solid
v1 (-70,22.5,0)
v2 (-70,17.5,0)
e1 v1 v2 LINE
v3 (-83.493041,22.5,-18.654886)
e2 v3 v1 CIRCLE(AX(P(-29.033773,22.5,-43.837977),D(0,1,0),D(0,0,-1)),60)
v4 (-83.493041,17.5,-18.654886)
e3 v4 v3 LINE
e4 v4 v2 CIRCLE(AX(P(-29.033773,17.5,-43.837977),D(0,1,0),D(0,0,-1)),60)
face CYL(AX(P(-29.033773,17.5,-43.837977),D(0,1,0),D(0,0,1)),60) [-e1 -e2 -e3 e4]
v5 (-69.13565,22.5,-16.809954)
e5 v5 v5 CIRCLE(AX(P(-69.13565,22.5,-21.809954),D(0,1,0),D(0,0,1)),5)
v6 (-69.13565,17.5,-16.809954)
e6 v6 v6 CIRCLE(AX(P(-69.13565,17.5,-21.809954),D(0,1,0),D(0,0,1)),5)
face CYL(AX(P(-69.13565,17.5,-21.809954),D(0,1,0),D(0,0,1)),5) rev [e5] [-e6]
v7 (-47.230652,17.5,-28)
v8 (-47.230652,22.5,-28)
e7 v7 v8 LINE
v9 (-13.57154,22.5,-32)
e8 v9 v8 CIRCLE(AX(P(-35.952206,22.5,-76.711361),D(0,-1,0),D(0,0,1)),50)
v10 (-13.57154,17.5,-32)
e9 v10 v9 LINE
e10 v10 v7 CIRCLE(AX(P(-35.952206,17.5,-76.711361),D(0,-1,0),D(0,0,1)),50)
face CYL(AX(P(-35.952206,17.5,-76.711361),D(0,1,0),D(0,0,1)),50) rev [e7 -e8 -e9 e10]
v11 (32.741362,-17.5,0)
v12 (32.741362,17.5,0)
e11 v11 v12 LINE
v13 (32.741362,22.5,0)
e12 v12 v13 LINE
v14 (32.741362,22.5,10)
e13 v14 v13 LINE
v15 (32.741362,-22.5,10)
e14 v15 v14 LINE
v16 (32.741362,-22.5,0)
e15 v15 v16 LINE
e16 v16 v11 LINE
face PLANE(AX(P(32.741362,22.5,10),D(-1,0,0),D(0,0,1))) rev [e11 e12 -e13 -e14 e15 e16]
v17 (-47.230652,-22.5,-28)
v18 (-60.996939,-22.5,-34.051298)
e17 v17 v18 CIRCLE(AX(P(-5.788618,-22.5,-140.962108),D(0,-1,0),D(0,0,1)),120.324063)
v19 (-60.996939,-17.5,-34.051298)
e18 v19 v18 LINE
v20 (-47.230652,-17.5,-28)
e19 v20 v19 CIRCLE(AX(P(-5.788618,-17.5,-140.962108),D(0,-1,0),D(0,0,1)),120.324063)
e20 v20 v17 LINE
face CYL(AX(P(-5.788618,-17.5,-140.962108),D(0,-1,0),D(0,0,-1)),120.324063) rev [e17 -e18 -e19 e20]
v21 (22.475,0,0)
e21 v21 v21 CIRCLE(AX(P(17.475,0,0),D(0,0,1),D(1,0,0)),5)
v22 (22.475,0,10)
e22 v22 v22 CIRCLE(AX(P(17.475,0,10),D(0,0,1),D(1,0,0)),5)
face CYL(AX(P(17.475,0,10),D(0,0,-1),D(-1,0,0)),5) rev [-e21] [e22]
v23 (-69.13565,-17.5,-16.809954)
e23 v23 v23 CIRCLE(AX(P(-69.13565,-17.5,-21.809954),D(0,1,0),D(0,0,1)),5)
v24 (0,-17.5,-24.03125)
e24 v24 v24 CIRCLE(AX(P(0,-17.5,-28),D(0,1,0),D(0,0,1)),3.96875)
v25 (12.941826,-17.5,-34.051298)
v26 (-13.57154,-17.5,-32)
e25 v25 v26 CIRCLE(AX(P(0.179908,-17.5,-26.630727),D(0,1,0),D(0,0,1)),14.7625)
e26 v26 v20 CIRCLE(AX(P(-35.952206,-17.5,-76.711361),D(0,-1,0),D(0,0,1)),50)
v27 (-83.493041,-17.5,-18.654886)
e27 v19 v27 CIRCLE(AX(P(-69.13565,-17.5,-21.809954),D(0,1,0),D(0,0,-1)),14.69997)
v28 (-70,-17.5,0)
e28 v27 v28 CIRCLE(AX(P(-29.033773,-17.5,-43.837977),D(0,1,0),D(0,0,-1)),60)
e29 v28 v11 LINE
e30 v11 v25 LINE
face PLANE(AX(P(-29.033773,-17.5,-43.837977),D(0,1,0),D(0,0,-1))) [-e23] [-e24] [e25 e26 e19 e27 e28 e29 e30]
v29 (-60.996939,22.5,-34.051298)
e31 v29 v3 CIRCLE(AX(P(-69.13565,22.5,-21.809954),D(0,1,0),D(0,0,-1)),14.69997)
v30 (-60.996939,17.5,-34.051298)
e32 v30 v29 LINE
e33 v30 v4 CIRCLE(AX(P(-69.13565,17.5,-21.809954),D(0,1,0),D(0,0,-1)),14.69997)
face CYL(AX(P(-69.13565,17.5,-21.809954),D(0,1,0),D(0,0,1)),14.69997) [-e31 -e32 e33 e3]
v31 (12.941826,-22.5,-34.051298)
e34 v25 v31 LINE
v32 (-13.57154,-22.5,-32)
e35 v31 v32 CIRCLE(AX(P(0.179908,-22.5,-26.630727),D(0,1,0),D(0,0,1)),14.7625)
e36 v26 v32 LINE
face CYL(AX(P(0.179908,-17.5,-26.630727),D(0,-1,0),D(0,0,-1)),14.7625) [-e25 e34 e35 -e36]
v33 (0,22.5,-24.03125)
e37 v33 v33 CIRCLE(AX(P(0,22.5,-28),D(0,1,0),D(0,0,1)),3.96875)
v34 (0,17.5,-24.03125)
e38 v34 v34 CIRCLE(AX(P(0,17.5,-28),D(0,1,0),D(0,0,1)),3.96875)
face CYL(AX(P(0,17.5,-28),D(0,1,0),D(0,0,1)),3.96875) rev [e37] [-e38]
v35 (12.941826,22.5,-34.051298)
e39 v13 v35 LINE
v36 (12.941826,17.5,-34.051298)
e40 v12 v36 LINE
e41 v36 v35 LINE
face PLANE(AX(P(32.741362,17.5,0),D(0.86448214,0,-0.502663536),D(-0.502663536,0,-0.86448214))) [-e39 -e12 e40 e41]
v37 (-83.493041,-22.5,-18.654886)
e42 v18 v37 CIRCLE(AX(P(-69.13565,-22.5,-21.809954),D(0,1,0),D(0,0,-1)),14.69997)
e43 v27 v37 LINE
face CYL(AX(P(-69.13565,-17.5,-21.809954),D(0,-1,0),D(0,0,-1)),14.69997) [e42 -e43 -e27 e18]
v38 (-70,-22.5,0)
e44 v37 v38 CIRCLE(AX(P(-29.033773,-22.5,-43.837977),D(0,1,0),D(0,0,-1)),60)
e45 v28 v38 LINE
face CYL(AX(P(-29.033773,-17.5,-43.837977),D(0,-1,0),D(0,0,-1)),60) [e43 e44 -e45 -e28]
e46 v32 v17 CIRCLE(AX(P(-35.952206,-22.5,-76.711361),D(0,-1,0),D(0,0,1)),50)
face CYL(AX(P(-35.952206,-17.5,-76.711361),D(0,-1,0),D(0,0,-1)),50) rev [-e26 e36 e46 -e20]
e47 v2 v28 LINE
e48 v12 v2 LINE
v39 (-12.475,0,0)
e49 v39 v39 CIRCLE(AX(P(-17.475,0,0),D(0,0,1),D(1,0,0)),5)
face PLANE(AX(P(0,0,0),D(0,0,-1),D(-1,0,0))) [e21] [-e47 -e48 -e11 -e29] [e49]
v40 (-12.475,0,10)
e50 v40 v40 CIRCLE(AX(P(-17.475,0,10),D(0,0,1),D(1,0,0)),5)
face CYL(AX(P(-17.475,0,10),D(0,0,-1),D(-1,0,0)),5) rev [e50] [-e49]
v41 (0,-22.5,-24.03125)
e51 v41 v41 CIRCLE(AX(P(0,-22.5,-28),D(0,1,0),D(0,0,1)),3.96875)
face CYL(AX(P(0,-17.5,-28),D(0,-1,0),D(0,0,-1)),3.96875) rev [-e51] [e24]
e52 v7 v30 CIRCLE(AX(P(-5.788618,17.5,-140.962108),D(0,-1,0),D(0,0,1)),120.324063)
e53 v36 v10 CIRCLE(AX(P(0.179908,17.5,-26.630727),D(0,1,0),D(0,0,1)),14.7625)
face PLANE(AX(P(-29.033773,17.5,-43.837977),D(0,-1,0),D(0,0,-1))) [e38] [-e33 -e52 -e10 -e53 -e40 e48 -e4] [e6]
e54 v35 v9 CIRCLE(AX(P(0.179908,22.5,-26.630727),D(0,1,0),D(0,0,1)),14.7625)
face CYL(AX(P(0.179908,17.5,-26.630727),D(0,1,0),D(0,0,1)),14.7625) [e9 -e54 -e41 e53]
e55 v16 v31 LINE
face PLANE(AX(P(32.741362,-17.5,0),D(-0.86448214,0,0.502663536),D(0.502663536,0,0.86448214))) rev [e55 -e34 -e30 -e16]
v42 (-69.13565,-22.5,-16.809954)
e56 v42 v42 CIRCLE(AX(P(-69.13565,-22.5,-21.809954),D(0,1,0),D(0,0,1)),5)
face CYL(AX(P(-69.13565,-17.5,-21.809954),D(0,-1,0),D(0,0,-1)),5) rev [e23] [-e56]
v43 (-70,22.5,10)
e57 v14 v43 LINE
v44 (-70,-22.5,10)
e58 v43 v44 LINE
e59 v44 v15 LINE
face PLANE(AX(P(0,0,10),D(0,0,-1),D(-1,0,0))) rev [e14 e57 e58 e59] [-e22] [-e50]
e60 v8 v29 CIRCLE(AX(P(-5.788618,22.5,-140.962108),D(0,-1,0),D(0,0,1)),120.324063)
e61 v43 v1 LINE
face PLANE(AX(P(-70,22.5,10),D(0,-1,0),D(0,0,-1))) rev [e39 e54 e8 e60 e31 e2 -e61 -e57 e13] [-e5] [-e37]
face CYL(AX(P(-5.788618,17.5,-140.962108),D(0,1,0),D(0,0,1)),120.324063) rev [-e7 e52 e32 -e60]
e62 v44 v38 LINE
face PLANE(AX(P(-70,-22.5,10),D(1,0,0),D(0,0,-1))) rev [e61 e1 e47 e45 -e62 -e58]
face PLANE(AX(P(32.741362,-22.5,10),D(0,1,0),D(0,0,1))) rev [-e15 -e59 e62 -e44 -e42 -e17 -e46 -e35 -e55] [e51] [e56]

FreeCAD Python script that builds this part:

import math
import FreeCAD as App
import Part
import Sketcher
Q = App.Units.Quantity


def add_polygon(sketch, points):
    """Adds a closed chain of lines whose ends are joined by coincident constraints."""
    first, n = sketch.GeometryCount, len(points)
    for a, b in zip(points, points[1:] + points[:1]):
        sketch.addGeometry(Part.LineSegment(App.Vector(*a, 0), App.Vector(*b, 0)), False)
    for i in range(n):
        sketch.addConstraint(Sketcher.Constraint("Coincident", first + i, 2, first + (i + 1) % n, 1))

doc = App.newDocument("Part")
body = doc.addObject("PartDesign::Body", "Body")

# Sketch on XY plane
sketch1 = body.newObject("Sketcher::SketchObject", "Sketch")
sketch1.AttachmentSupport = (doc.getObject("XY_Plane"), [""])
sketch1.MapMode = "FlatFace"
add_polygon(sketch1, [(-70, 22), (-70, -22), (33, -22), (33, 22)])  # lines 0-3
sketch1.addGeometry(Part.Circle(App.Vector(-17, 0, 0), App.Vector(0, 0, 1), 5), False)  # 4
sketch1.addGeometry(Part.Circle(App.Vector(17, 0, 0), App.Vector(0, 0, 1), 5), False)  # 5
sketch1.addConstraint([
    Sketcher.Constraint("Vertical", 0),
    Sketcher.Constraint("Horizontal", 1),
    Sketcher.Constraint("Vertical", 2),
    Sketcher.Constraint("Horizontal", 3),
    Sketcher.Constraint("Equal", 4, 5),
    Sketcher.Constraint("Symmetric", 4, 3, 5, 3, -1, 1),
    Sketcher.Constraint("PointOnObject", 4, 3, -1),
    Sketcher.Constraint("Diameter", 4, Q("10 mm")),
    Sketcher.Constraint("DistanceY", 0, 2, 0, 1, Q("45 mm")),
    Sketcher.Constraint("DistanceX", 0, 2, -1, 1, Q("70 mm")),
    Sketcher.Constraint("DistanceY", 0, 2, -1, 1, Q("22.5 mm")),
    Sketcher.Constraint("DistanceX", 4, 3, 5, 3, Q("34.95 mm")),
    Sketcher.Constraint("DistanceX", 1, 1, 1, 2, Q("102.741362 mm")),
])
pad1 = body.newObject("PartDesign::Pad", "Pad")
pad1.Profile = sketch1
pad1.Length = 10

# Sketch on XZ plane
sketch2 = body.newObject("Sketcher::SketchObject", "Sketch001")
sketch2.AttachmentSupport = (doc.getObject("XZ_Plane"), [""])
sketch2.MapMode = "FlatFace"
sketch2.AttachmentOffset = App.Placement(App.Vector(0, 0, -22.5), App.Rotation())
sketch2.addGeometry([
    Part.LineSegment(App.Vector(32.7, 10, 0), App.Vector(32.7, 0, 0)),  # 0
    Part.LineSegment(App.Vector(32.7, 0, 0), App.Vector(12.9, -34.1, 0)),  # 1
    Part.ArcOfCircle(Part.Circle(App.Vector(0.2, -26.6, 0), App.Vector(0, 0, 1), 14.8), math.radians(-159), math.radians(-30)),  # 2
    Part.ArcOfCircle(Part.Circle(App.Vector(-36, -76.7, 0), App.Vector(0, 0, 1), 50), math.radians(63), math.radians(103)),  # 3
    Part.ArcOfCircle(Part.Circle(App.Vector(-5.8, -141, 0), App.Vector(0, 0, 1), 120.3), math.radians(110.15), math.radians(117.31)),  # 4
    Part.ArcOfCircle(Part.Circle(App.Vector(-69.1, -21.8, 0), App.Vector(0, 0, 1), 14.7), math.radians(168), math.radians(304)),  # 5
    Part.ArcOfCircle(Part.Circle(App.Vector(-29, -43.8, 0), App.Vector(0, 0, 1), 60), math.radians(133), math.radians(155)),  # 6
    Part.LineSegment(App.Vector(-70, 0, 0), App.Vector(-70, 10, 0)),  # 7
    Part.LineSegment(App.Vector(-70, 10, 0), App.Vector(32.7, 10, 0)),  # 8
    Part.Circle(App.Vector(-69.1, -21.8, 0), App.Vector(0, 0, 1), 5),  # 9
    Part.Circle(App.Vector(0, -28, 0), App.Vector(0, 0, 1), 4),  # 10
], False)
sketch2.addConstraint([
    Sketcher.Constraint("Coincident", 0, 2, 1, 1),
    Sketcher.Constraint("Tangent", 1, 2, 2, 2),
    Sketcher.Constraint("Coincident", 2, 1, 3, 1),
    Sketcher.Constraint("Coincident", 3, 2, 4, 1),
    Sketcher.Constraint("Coincident", 4, 2, 5, 2),
    Sketcher.Constraint("Coincident", 5, 1, 6, 2),
    Sketcher.Constraint("Coincident", 6, 1, 7, 1),
    Sketcher.Constraint("Coincident", 7, 2, 8, 1),
    Sketcher.Constraint("Coincident", 8, 2, 0, 1),
    Sketcher.Constraint("Vertical", 0),
    Sketcher.Constraint("Vertical", 7),
    Sketcher.Constraint("Horizontal", 8),
    Sketcher.Constraint("Coincident", 9, 3, 5, 3),
    Sketcher.Constraint("PointOnObject", 10, 3, -2),
    Sketcher.Constraint("PointOnObject", 0, 2, -1),
    Sketcher.Constraint("PointOnObject", 6, 1, -1),
    Sketcher.Constraint("Horizontal", 10, 3, 3, 2),
    Sketcher.Constraint("Horizontal", 1, 2, 4, 2),
    Sketcher.Constraint("Diameter", 9, Q("10 mm")),
    Sketcher.Constraint("Radius", 3, Q("50 mm")),
    Sketcher.Constraint("Radius", 6, Q("60 mm")),
    Sketcher.Constraint("DistanceY", 0, 2, 0, 1, Q("10 mm")),
    Sketcher.Constraint("DistanceY", 10, 3, -1, 1, Q("28 mm")),
    Sketcher.Constraint("DistanceY", 2, 1, -1, 1, Q("32 mm")),
    Sketcher.Constraint("DistanceX", 6, 1, -1, 1, Q("70 mm")),
    Sketcher.Constraint("Diameter", 10, Q("7.9375 mm")),
    Sketcher.Constraint("Radius", 2, Q("14.7625 mm")),
    Sketcher.Constraint("Radius", 5, Q("14.69997 mm")),
    Sketcher.Constraint("Radius", 4, Q("120.324063 mm")),
    Sketcher.Constraint("DistanceX", 5, 3, 3, 2, Q("21.904998 mm")),
    Sketcher.Constraint("DistanceX", 6, 3, 1, 2, Q("41.975599 mm")),
    Sketcher.Constraint("DistanceX", 4, 2, 2, 1, Q("47.425399 mm")),
    Sketcher.Constraint("DistanceX", 2, 1, 8, 2, Q("46.312902 mm")),
    Sketcher.Constraint("DistanceX", 8, 1, 8, 2, Q("102.741362 mm")),
    Sketcher.Constraint("DistanceX", -1, 1, 2, 3, Q("0.179908 mm")),
    Sketcher.Constraint("DistanceY", 3, 3, -1, 1, Q("76.711361 mm")),
])
pad2 = body.newObject("PartDesign::Pad", "Pad001")
pad2.Profile = sketch2
pad2.Length = 5
doc.recompute()

mirrored = body.newObject("PartDesign::Mirrored", "Mirrored")
mirrored.Originals = [pad2]
mirrored.MirrorPlane = (doc.getObject("XZ_Plane"), [""])
body.Tip = mirrored

doc.recompute()
